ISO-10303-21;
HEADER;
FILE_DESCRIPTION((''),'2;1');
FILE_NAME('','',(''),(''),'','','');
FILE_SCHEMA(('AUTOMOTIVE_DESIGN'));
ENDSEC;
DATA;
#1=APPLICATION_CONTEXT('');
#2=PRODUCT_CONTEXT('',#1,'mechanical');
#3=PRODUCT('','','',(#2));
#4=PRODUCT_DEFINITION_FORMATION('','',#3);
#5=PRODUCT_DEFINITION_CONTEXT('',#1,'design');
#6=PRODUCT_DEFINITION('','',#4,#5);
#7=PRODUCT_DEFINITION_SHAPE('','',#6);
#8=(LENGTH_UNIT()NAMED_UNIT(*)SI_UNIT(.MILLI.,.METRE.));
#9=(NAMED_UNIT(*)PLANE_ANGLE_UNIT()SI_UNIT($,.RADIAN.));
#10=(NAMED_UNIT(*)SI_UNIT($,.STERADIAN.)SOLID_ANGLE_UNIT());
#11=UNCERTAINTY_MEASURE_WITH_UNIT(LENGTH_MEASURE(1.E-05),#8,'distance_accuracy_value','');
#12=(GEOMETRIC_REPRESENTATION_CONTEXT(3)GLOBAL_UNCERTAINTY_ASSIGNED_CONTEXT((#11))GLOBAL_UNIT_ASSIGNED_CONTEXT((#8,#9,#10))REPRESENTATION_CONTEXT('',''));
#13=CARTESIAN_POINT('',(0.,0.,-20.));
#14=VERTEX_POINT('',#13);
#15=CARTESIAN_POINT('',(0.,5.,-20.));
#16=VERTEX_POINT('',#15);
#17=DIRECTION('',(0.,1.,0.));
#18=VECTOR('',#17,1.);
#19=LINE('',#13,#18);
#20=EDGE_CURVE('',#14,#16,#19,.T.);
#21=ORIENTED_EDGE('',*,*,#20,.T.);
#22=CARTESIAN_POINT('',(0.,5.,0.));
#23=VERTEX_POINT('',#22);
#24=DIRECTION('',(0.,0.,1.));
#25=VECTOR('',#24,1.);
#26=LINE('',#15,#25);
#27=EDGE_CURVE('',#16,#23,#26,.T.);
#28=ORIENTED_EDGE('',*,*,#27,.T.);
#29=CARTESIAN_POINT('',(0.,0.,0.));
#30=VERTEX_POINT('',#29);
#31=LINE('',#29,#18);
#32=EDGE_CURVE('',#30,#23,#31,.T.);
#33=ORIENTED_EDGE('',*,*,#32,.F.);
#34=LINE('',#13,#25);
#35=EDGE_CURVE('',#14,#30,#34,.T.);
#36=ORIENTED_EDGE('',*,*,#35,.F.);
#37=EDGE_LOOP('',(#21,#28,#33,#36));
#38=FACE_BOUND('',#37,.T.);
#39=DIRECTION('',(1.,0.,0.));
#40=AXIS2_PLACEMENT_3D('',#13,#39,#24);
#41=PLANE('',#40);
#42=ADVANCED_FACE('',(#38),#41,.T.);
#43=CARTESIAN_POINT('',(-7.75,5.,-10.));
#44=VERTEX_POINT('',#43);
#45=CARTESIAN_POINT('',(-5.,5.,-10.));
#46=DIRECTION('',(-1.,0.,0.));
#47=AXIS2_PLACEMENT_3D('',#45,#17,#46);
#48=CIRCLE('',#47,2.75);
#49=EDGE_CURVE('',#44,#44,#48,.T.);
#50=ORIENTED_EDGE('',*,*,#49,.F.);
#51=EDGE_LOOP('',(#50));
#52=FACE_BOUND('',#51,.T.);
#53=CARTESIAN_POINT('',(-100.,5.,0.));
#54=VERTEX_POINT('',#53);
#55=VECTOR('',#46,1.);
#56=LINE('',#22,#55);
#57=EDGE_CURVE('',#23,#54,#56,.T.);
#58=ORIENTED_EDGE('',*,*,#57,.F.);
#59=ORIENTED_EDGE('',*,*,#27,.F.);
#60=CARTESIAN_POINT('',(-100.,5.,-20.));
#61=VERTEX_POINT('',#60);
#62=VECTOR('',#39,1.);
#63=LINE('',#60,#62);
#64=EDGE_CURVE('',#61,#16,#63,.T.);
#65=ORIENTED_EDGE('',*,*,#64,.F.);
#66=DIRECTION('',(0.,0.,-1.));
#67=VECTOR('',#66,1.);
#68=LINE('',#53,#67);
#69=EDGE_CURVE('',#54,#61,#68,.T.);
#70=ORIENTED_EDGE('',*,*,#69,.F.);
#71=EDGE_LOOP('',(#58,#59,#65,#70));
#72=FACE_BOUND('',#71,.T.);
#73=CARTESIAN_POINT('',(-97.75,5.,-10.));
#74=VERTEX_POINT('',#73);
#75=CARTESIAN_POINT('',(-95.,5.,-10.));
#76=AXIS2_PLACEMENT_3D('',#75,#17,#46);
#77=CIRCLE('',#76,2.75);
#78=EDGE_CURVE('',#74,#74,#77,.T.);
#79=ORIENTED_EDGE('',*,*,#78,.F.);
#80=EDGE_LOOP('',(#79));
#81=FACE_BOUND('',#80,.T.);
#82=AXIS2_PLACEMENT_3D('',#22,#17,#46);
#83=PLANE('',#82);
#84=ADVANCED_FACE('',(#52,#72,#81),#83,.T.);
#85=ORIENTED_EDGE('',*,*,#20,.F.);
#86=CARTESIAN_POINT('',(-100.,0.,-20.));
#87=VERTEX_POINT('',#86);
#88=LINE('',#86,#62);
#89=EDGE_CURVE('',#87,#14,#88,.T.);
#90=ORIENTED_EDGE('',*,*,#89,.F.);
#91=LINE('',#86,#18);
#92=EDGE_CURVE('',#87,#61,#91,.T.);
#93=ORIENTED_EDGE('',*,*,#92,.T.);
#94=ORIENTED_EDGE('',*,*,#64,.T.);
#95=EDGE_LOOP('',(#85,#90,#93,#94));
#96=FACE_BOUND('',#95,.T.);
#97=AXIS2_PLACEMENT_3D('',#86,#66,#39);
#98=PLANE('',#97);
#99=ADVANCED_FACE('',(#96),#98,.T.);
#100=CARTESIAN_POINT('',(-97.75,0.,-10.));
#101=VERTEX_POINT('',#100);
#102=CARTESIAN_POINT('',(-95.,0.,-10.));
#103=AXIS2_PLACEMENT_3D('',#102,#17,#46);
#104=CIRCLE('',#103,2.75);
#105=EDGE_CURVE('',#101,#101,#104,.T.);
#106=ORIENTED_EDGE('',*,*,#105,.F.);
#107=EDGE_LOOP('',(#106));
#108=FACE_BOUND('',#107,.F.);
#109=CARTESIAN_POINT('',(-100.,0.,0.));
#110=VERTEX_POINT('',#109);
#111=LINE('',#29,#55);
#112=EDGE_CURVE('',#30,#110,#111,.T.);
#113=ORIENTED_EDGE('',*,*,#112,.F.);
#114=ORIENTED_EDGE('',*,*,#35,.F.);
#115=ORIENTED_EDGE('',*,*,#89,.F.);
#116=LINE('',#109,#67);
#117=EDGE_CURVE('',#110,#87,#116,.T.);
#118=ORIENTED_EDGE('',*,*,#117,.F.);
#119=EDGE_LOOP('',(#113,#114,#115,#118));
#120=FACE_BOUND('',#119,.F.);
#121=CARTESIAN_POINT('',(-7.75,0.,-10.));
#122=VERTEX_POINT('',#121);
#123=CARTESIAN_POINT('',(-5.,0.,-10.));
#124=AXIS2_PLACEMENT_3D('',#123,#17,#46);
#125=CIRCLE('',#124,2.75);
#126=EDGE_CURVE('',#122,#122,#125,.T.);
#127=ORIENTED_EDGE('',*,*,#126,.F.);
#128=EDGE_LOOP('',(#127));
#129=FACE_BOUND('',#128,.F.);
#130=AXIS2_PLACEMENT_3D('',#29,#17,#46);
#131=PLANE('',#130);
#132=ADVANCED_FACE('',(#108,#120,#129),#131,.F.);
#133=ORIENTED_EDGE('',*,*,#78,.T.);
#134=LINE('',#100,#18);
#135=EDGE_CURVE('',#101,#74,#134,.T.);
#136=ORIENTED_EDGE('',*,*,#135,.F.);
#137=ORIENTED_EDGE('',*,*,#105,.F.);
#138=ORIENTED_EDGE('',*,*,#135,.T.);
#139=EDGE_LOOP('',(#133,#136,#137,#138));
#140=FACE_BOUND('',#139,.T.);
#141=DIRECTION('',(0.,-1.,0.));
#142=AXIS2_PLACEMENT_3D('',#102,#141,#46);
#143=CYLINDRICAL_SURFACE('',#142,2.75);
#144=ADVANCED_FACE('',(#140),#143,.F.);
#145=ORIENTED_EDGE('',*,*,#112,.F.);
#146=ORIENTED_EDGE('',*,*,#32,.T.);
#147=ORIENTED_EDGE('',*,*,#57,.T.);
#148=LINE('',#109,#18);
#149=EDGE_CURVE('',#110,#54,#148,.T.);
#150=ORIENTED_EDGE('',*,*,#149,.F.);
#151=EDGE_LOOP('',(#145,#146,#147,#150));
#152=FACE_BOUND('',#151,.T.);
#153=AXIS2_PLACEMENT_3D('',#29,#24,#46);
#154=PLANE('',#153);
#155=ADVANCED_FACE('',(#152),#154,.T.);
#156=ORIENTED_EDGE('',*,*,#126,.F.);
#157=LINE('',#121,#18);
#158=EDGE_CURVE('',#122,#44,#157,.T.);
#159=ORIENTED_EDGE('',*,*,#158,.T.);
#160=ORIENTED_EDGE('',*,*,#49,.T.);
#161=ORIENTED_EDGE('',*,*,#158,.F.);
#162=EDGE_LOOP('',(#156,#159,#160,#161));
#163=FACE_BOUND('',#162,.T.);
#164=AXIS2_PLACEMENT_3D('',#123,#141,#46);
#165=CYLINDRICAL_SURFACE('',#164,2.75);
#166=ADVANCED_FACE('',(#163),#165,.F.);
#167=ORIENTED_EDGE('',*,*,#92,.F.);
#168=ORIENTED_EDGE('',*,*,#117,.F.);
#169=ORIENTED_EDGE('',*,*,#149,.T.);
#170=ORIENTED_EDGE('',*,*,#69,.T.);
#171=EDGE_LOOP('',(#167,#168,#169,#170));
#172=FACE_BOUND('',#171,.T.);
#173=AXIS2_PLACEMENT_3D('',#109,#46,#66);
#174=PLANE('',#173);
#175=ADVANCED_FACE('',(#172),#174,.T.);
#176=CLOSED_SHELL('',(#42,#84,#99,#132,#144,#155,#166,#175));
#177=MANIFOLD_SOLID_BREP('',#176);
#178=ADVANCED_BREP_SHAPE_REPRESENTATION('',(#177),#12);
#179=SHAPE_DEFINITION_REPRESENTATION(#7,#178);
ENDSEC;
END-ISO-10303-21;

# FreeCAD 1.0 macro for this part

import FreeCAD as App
import Part
import Sketcher

doc = App.newDocument("Part")
body = doc.addObject("PartDesign::Body", "Body")

# Sketch on XZ plane
sketch1 = doc.addObject("Sketcher::SketchObject", "Sketch")
body.addObject(sketch1)
sketch1.AttachmentSupport = (doc.XZ_Plane, [""])
sketch1.MapMode = "FlatFace"
sketch1.addGeometry([
    Part.LineSegment(App.Vector(-100, 0, 0), App.Vector(0, 0, 0)),  # 0
    Part.LineSegment(App.Vector(0, 0, 0), App.Vector(0, -20, 0)),  # 1
    Part.LineSegment(App.Vector(0, -20, 0), App.Vector(-100, -20, 0)),  # 2
    Part.LineSegment(App.Vector(-100, -20, 0), App.Vector(-100, 0, 0)),  # 3
    Part.Circle(App.Vector(-5, -10, 0), App.Vector(0, 0, 1), 2.8),  # 4
    Part.Circle(App.Vector(-95, -10, 0), App.Vector(0, 0, 1), 2.8),  # 5
], False)
sketch1.addConstraint([
    Sketcher.Constraint("Coincident", 0, 2, 1, 1),
    Sketcher.Constraint("Coincident", 1, 2, 2, 1),
    Sketcher.Constraint("Coincident", 2, 2, 3, 1),
    Sketcher.Constraint("Coincident", 3, 2, 0, 1),
    Sketcher.Constraint("Horizontal", 0),
    Sketcher.Constraint("Vertical", 1),
    Sketcher.Constraint("Horizontal", 2),
    Sketcher.Constraint("Vertical", 3),
    Sketcher.Constraint("Coincident", 0, 2, -1, 1),
    Sketcher.Constraint("Equal", 4, 5),
    Sketcher.Constraint("Horizontal", 4, 3, 5, 3),
    Sketcher.Constraint("Diameter", 4, 5.5),
    Sketcher.Constraint("DistanceX", 0, 1, 0, 2, 100.0),
    Sketcher.Constraint("DistanceY", 1, 2, 1, 1, 20.0),
    Sketcher.Constraint("DistanceX", 4, 3, -1, 1, 5.0),
    Sketcher.Constraint("DistanceX", 2, 2, 5, 3, 5.0),
    Sketcher.Constraint("DistanceY", 4, 3, -1, 1, 10.0),
])
pad1 = doc.addObject("PartDesign::Pad", "Pad")
body.addObject(pad1)
pad1.Profile = sketch1
pad1.Length = 5
pad1.Reversed = True

doc.recompute()
